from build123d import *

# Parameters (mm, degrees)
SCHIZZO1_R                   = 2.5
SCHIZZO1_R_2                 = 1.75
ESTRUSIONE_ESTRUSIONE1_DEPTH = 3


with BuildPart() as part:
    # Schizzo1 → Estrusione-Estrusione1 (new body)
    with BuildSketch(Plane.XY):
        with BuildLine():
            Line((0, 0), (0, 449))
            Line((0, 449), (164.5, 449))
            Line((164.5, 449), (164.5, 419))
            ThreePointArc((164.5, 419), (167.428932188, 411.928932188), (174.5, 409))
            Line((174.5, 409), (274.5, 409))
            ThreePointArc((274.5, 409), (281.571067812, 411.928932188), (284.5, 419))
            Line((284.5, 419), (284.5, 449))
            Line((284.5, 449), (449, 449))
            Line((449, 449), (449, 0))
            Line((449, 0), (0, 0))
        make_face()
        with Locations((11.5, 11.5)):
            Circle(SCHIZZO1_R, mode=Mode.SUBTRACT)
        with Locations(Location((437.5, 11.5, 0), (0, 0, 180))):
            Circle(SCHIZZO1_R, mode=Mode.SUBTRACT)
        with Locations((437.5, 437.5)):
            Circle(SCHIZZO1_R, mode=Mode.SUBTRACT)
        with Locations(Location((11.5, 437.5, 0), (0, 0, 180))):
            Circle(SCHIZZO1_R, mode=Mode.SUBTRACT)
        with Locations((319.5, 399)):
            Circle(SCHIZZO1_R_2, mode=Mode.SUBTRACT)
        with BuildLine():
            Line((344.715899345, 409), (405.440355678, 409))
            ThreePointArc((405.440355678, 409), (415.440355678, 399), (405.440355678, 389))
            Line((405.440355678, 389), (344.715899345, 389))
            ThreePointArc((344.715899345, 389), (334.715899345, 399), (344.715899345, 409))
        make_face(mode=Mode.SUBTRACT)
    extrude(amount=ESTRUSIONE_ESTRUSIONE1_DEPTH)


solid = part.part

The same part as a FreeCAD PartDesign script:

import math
import FreeCAD as App
import Part
import Sketcher

doc = App.newDocument("Part")
body = doc.addObject("PartDesign::Body", "Body")

sketch1 = body.newObject("Sketcher::SketchObject", "Sketch")
sketch1.AttachmentSupport = (doc.getObject("XY_Plane"), [""])
sketch1.MapMode = "FlatFace"
sketch1.addGeometry(Part.LineSegment(App.Vector(0, 449, 0), App.Vector(0, 0, 0)), False)
sketch1.addGeometry(Part.LineSegment(App.Vector(0, 0, 0), App.Vector(449, 0, 0)), False)
sketch1.addGeometry(Part.LineSegment(App.Vector(449, 0, 0), App.Vector(449, 449, 0)), False)
sketch1.addGeometry(Part.LineSegment(App.Vector(449, 449, 0), App.Vector(284.5, 449, 0)), False)
sketch1.addGeometry(Part.LineSegment(App.Vector(284.5, 449, 0), App.Vector(284.5, 419, 0)), False)
sketch1.addGeometry(Part.ArcOfCircle(Part.Circle(App.Vector(274.5, 419, 0), App.Vector(0, 0, 1), 10), math.radians(-90), math.radians(0)), False)
sketch1.addGeometry(Part.LineSegment(App.Vector(274.5, 409, 0), App.Vector(174.5, 409, 0)), False)
sketch1.addGeometry(Part.ArcOfCircle(Part.Circle(App.Vector(174.5, 419, 0), App.Vector(0, 0, 1), 10), math.radians(180), math.radians(270)), False)
sketch1.addGeometry(Part.LineSegment(App.Vector(164.5, 419, 0), App.Vector(164.5, 449, 0)), False)
sketch1.addGeometry(Part.LineSegment(App.Vector(164.5, 449, 0), App.Vector(0, 449, 0)), False)
sketch1.addGeometry(Part.Circle(App.Vector(437.5, 11.5, 0), App.Vector(0, 0, 1), 2.5), False)
sketch1.addGeometry(Part.Circle(App.Vector(11.5, 11.5, 0), App.Vector(0, 0, 1), 2.5), False)
sketch1.addGeometry(Part.Circle(App.Vector(437.5, 437.5, 0), App.Vector(0, 0, 1), 2.5), False)
sketch1.addGeometry(Part.LineSegment(App.Vector(344.7, 409, 0), App.Vector(405.4, 409, 0)), False)
sketch1.addGeometry(Part.ArcOfCircle(Part.Circle(App.Vector(405.4, 399, 0), App.Vector(0, 0, 1), 10), math.radians(-90), math.radians(90)), False)
sketch1.addGeometry(Part.LineSegment(App.Vector(405.4, 389, 0), App.Vector(344.7, 389, 0)), False)
sketch1.addGeometry(Part.ArcOfCircle(Part.Circle(App.Vector(344.7, 399, 0), App.Vector(0, 0, 1), 10), math.radians(90), math.radians(270)), False)
sketch1.addGeometry(Part.Circle(App.Vector(319.5, 399, 0), App.Vector(0, 0, 1), 1.8), False)
sketch1.addGeometry(Part.Circle(App.Vector(11.5, 437.5, 0), App.Vector(0, 0, 1), 2.5), False)
sketch1.addConstraint(Sketcher.Constraint("Coincident", 0, 2, 1, 1))
sketch1.addConstraint(Sketcher.Constraint("Coincident", 1, 2, 2, 1))
sketch1.addConstraint(Sketcher.Constraint("Coincident", 2, 2, 3, 1))
sketch1.addConstraint(Sketcher.Constraint("Coincident", 3, 2, 4, 1))
sketch1.addConstraint(Sketcher.Constraint("Tangent", 4, 2, 5, 2))
sketch1.addConstraint(Sketcher.Constraint("Tangent", 5, 1, 6, 1))
sketch1.addConstraint(Sketcher.Constraint("Tangent", 6, 2, 7, 2))
sketch1.addConstraint(Sketcher.Constraint("Tangent", 7, 1, 8, 1))
sketch1.addConstraint(Sketcher.Constraint("Coincident", 8, 2, 9, 1))
sketch1.addConstraint(Sketcher.Constraint("Coincident", 9, 2, 0, 1))
sketch1.addConstraint(Sketcher.Constraint("Tangent", 13, 2, 14, 2))
sketch1.addConstraint(Sketcher.Constraint("Tangent", 14, 1, 15, 1))
sketch1.addConstraint(Sketcher.Constraint("Tangent", 15, 2, 16, 2))
sketch1.addConstraint(Sketcher.Constraint("Tangent", 16, 1, 13, 1))
sketch1.addConstraint(Sketcher.Constraint("Vertical", 0))
sketch1.addConstraint(Sketcher.Constraint("Horizontal", 1))
sketch1.addConstraint(Sketcher.Constraint("Vertical", 2))
sketch1.addConstraint(Sketcher.Constraint("Horizontal", 3))
sketch1.addConstraint(Sketcher.Constraint("Vertical", 4))
sketch1.addConstraint(Sketcher.Constraint("Horizontal", 6))
sketch1.addConstraint(Sketcher.Constraint("Vertical", 8))
sketch1.addConstraint(Sketcher.Constraint("Horizontal", 9))
sketch1.addConstraint(Sketcher.Constraint("Horizontal", 13))
sketch1.addConstraint(Sketcher.Constraint("Horizontal", 15))
sketch1.addConstraint(Sketcher.Constraint("Coincident", 0, 2, -1, 1))
sketch1.addConstraint(Sketcher.Constraint("Equal", 5, 7))
sketch1.addConstraint(Sketcher.Constraint("Equal", 10, 11))
sketch1.addConstraint(Sketcher.Constraint("Equal", 11, 12))
sketch1.addConstraint(Sketcher.Constraint("Equal", 7, 14))
sketch1.addConstraint(Sketcher.Constraint("Equal", 12, 18))
sketch1.addConstraint(Sketcher.Constraint("Horizontal", 10, 3, 11, 3))
sketch1.addConstraint(Sketcher.Constraint("Horizontal", 16, 3, 17, 3))
sketch1.addConstraint(Sketcher.Constraint("Horizontal", 12, 3, 18, 3))
sketch1.addConstraint(Sketcher.Constraint("Horizontal", 3, 2, 8, 2))
sketch1.addConstraint(Sketcher.Constraint("Horizontal", 6, 2, 13, 2))
sketch1.addConstraint(Sketcher.Constraint("Vertical", 10, 3, 12, 3))
sketch1.addConstraint(Sketcher.Constraint("Vertical", 11, 3, 18, 3))
sketch1.addConstraint(Sketcher.Constraint("Equal", 3, 9))
sketch1.addConstraint(Sketcher.Constraint("Equal", 1, 0))
sketch1.addConstraint(Sketcher.Constraint("Diameter", 10, 5.0))
sketch1.addConstraint(Sketcher.Constraint("Radius", 5, 10.0))
sketch1.addConstraint(Sketcher.Constraint("Diameter", 17, 3.5))
sketch1.addConstraint(Sketcher.Constraint("DistanceX", 1, 1, 1, 2, 449.0))
sketch1.addConstraint(Sketcher.Constraint("DistanceX", 6, 2, 6, 1, 100.0))
sketch1.addConstraint(Sketcher.Constraint("DistanceY", 4, 2, 4, 1, 30.0))
sketch1.addConstraint(Sketcher.Constraint("DistanceX", 5, 3, 10, 3, 163.0))
sketch1.addConstraint(Sketcher.Constraint("DistanceX", 11, 3, 10, 3, 426.0))
sketch1.addConstraint(Sketcher.Constraint("DistanceY", 10, 3, 12, 3, 426.0))
sketch1.addConstraint(Sketcher.Constraint("DistanceX", 5, 3, 17, 3, 45.0))
sketch1.addConstraint(Sketcher.Constraint("DistanceY", -1, 1, 10, 3, 11.5))
sketch1.addConstraint(Sketcher.Constraint("DistanceX", -1, 1, 16, 3, 344.715899))
sketch1.addConstraint(Sketcher.Constraint("DistanceX", 13, 1, 13, 2, 60.724456))
pad1 = body.newObject("PartDesign::Pad", "Pad")
pad1.Profile = sketch1
pad1.Length = 3

doc.recompute()
